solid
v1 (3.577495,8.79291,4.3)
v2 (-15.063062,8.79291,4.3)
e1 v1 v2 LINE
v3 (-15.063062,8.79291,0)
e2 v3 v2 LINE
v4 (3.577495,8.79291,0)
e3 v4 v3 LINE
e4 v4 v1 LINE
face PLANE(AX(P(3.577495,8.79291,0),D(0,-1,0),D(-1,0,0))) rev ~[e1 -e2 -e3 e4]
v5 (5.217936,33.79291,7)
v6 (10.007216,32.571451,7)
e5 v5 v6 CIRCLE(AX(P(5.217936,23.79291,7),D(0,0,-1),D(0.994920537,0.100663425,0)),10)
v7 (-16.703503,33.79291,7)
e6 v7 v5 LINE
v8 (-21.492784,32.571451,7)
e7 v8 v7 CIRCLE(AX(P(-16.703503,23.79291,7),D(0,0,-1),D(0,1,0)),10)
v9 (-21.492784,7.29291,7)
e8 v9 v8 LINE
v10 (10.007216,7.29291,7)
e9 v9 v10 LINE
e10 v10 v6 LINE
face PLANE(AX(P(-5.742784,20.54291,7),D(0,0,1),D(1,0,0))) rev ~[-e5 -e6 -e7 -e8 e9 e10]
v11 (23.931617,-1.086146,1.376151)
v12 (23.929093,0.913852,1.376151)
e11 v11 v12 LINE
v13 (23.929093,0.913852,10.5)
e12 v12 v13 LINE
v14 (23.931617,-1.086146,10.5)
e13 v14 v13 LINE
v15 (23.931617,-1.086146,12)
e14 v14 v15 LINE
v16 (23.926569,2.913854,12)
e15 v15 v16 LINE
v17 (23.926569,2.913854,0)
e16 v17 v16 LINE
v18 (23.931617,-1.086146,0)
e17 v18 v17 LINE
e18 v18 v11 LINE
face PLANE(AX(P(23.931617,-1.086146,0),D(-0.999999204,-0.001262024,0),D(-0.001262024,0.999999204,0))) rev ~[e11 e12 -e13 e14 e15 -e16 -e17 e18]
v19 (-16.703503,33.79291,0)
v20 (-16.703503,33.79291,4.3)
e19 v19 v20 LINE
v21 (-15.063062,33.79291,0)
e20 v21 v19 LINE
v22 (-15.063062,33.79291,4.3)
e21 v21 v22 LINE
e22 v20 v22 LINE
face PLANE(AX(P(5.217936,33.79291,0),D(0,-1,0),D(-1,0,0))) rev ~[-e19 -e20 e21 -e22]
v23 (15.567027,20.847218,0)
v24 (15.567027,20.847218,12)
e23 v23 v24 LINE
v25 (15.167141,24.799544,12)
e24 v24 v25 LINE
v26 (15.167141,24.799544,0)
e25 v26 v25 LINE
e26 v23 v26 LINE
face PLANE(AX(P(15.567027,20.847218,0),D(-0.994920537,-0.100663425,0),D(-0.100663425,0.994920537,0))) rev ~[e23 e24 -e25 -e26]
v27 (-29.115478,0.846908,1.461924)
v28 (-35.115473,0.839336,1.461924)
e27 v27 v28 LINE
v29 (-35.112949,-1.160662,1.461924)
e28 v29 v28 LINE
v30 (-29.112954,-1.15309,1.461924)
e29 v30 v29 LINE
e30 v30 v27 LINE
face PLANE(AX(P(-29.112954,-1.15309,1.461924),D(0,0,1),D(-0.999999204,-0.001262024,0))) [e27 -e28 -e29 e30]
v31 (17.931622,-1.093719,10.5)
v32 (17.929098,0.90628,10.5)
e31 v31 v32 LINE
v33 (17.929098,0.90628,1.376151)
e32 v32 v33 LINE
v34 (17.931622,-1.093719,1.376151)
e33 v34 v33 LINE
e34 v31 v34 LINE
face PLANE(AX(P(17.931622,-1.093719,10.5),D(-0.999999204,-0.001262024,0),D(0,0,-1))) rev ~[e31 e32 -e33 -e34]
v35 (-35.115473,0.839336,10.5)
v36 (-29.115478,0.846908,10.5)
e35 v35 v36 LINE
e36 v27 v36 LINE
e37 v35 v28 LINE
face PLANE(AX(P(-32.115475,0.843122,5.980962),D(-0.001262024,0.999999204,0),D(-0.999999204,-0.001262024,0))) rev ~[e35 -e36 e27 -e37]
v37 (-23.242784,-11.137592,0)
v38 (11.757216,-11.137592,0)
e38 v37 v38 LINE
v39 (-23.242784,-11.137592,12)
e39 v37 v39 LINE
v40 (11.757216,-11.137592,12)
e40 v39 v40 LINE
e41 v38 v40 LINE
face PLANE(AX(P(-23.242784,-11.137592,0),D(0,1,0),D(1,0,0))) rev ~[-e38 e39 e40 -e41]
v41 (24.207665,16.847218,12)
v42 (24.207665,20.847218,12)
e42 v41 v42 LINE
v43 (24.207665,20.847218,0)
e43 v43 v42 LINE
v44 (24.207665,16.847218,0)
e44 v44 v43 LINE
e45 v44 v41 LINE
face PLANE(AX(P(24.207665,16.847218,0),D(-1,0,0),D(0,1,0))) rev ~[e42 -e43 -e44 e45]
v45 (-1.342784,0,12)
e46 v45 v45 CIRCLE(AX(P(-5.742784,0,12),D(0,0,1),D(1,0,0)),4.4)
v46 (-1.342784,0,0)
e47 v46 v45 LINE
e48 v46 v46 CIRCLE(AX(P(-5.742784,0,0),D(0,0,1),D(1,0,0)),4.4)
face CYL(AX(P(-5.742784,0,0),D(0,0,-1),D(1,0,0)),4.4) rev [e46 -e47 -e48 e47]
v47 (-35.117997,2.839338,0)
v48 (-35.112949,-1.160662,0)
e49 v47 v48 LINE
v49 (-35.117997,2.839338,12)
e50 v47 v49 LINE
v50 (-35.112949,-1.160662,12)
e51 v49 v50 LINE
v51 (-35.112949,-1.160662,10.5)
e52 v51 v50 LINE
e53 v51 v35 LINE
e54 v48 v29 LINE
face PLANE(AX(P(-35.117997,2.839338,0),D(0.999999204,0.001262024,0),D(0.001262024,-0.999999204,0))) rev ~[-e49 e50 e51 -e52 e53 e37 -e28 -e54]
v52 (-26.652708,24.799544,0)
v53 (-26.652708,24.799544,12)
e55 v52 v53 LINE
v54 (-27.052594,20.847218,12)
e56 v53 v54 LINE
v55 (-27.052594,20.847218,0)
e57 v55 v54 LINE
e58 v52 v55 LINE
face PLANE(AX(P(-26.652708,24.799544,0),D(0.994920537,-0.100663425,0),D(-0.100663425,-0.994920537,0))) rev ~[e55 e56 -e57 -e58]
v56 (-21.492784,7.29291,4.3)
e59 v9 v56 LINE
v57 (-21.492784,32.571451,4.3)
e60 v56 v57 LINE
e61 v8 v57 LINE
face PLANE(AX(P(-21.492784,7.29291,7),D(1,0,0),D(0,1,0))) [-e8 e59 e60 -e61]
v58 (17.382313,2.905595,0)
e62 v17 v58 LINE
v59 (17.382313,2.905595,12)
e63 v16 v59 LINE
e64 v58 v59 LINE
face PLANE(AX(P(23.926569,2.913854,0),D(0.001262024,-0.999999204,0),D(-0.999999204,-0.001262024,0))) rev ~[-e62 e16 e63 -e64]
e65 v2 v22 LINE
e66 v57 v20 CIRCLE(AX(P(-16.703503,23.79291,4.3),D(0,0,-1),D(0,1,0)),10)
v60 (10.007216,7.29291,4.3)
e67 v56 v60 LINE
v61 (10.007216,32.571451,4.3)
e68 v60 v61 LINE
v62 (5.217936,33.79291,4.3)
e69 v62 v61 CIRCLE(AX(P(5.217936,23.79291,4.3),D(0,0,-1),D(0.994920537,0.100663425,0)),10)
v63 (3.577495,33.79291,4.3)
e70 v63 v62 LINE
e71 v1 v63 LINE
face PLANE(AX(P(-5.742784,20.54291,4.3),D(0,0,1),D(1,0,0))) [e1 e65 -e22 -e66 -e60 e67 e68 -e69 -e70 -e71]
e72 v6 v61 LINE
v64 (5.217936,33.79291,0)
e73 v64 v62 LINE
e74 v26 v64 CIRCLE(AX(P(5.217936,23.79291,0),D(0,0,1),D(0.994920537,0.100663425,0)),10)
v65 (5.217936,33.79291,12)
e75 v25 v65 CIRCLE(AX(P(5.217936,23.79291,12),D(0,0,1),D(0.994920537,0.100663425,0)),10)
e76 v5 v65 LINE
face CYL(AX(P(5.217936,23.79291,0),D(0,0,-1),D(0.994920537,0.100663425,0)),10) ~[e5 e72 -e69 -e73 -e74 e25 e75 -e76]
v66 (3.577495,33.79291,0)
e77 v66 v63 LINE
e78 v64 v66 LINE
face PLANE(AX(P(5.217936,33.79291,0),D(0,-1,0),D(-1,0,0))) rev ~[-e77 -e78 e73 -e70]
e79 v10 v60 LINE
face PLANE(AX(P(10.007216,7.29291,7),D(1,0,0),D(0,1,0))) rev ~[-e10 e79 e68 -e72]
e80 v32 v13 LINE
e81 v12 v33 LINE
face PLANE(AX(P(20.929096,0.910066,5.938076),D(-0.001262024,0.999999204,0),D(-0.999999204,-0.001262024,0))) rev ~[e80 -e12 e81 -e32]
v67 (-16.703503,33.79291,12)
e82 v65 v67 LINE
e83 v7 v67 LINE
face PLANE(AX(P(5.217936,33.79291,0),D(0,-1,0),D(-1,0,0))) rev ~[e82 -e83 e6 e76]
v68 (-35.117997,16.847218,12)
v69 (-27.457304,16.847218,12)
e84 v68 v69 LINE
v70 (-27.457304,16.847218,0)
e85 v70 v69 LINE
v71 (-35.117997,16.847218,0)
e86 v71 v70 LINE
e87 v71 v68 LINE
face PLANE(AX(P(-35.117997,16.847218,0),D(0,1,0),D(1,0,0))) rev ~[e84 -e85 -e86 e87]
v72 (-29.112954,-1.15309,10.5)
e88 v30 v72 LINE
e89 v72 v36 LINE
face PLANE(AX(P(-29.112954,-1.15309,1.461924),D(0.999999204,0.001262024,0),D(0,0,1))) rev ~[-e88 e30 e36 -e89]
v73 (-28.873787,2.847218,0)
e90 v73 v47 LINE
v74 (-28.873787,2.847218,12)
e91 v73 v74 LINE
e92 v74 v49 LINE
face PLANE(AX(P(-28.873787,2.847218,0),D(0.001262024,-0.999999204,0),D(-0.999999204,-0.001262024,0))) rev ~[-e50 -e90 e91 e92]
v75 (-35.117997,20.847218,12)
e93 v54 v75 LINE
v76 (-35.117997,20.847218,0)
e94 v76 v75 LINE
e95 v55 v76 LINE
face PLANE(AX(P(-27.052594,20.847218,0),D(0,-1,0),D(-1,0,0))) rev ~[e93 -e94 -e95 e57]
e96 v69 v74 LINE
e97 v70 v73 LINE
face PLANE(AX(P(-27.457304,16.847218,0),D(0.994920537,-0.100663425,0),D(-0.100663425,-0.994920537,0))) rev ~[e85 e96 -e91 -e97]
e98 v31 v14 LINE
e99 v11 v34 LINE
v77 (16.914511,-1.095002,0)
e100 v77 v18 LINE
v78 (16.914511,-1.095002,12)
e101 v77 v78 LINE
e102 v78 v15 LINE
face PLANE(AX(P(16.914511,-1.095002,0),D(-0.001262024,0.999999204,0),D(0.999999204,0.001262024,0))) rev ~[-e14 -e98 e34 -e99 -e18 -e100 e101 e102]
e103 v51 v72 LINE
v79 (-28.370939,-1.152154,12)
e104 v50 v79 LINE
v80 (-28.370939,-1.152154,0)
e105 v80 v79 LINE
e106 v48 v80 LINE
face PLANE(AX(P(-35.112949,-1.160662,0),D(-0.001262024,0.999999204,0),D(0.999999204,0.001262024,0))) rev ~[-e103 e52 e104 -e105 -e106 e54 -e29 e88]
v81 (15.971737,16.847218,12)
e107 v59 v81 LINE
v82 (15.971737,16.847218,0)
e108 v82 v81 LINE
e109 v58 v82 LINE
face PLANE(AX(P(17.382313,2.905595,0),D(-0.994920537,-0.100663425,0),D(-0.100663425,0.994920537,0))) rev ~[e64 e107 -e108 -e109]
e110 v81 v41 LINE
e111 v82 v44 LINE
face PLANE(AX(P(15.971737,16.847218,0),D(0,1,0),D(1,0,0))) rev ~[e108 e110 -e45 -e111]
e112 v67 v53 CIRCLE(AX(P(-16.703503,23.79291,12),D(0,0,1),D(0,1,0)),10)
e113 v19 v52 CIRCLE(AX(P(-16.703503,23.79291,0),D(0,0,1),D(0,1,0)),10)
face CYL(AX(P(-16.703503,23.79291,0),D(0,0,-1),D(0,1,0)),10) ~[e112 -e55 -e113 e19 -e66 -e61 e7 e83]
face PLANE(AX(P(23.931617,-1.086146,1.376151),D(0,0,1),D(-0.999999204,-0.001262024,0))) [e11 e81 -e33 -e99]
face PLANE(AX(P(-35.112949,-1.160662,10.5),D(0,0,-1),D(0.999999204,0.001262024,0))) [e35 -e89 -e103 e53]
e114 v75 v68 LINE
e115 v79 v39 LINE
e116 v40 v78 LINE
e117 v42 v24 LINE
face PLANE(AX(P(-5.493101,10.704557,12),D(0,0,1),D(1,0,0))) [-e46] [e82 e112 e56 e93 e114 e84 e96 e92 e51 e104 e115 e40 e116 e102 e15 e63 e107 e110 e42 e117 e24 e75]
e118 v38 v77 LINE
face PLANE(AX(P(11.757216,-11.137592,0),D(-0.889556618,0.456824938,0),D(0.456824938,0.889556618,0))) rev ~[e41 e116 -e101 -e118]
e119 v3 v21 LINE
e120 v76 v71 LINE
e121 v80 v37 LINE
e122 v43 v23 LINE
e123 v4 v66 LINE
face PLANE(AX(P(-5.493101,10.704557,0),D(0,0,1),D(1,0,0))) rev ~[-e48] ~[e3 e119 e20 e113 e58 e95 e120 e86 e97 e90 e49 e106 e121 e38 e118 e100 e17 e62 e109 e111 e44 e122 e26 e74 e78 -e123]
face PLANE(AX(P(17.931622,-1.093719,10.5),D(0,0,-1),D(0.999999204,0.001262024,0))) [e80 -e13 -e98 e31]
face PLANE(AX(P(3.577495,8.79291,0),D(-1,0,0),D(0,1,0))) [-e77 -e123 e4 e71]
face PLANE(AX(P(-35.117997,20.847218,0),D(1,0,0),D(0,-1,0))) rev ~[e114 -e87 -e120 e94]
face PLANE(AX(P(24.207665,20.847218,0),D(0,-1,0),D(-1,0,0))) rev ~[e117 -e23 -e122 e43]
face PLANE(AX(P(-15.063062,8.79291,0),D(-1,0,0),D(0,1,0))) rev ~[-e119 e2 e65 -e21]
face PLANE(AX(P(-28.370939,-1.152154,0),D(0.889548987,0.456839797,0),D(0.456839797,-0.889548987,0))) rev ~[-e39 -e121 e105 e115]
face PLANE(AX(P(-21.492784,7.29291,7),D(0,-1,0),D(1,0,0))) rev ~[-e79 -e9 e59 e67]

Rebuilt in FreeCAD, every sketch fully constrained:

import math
import FreeCAD as App
import Part
import Sketcher

V = App.Vector


def add_polygon(sketch, points):
    """Adds a closed chain of lines whose ends are joined by coincident constraints."""
    first, n = sketch.GeometryCount, len(points)
    for a, b in zip(points, points[1:] + points[:1]):
        sketch.addGeometry(Part.LineSegment(App.Vector(*a, 0), App.Vector(*b, 0)), False)
    for i in range(n):
        sketch.addConstraint(Sketcher.Constraint("Coincident", first + i, 2, first + (i + 1) % n, 1))

doc = App.newDocument("Part")
params = doc.addObject("Spreadsheet::Sheet", "Params")
for row, (alias, value) in enumerate([
    ("sketch1_radius", "10 mm"),
    ("sketch1_diameter", "8.8 mm"),
    ("sketch1_width", "35 mm"),
    ("sketch1_height", "4 mm"),
    ("pad1_length", "12 mm"),
    ("sketch2_width", "6 mm"),
    ("pocket1_length", "2 mm"),
    ("sketch3_width", "31.5 mm"),
    ("sketch3_height", "26.5 mm"),
    ("pocket2_length", "2.7 mm"),
    ("sketch4_height", "25 mm"),
], start=1):
    params.set(f"A{row}", alias)
    params.set(f"B{row}", "=" + value)
    params.setAlias(f"B{row}", alias)

body = doc.addObject("PartDesign::Body", "Body")

sketch1 = body.newObject("Sketcher::SketchObject", "Sketch")
sketch1.AttachmentSupport = (doc.getObject("XY_Plane"), [""])
sketch1.MapMode = "FlatFace"
sketch1.addGeometry([
    Part.LineSegment(V(-26.652708, 24.799544, 0), V(-27.052594, 20.847218, 0)),
    Part.LineSegment(V(-27.052594, 20.847218, 0), V(-35.117997, 20.847218, 0)),
    Part.LineSegment(V(-35.117997, 20.847218, 0), V(-35.117997, 16.847218, 0)),
    Part.LineSegment(V(-35.117997, 16.847218, 0), V(-27.457304, 16.847218, 0)),
    Part.LineSegment(V(-27.457304, 16.847218, 0), V(-28.873787, 2.847218, 0)),
    Part.LineSegment(V(-28.873787, 2.847218, 0), V(-35.117997, 2.839338, 0)),
    Part.LineSegment(V(-35.117997, 2.839338, 0), V(-35.112949, -1.160662, 0)),
    Part.LineSegment(V(-35.112949, -1.160662, 0), V(-28.370939, -1.152154, 0)),
    Part.LineSegment(V(-28.370939, -1.152154, 0), V(-23.242784, -11.137592, 0)),
    Part.LineSegment(V(-23.242784, -11.137592, 0), V(11.757216, -11.137592, 0)),
    Part.LineSegment(V(11.757216, -11.137592, 0), V(16.914511, -1.095002, 0)),
    Part.LineSegment(V(16.914511, -1.095002, 0), V(23.931617, -1.086146, 0)),
    Part.LineSegment(V(23.931617, -1.086146, 0), V(23.926569, 2.913854, 0)),
    Part.LineSegment(V(23.926569, 2.913854, 0), V(17.382313, 2.905595, 0)),
    Part.LineSegment(V(17.382313, 2.905595, 0), V(15.971737, 16.847218, 0)),
    Part.LineSegment(V(15.971737, 16.847218, 0), V(24.207665, 16.847218, 0)),
    Part.LineSegment(V(24.207665, 16.847218, 0), V(24.207665, 20.847218, 0)),
    Part.LineSegment(V(24.207665, 20.847218, 0), V(15.567027, 20.847218, 0)),
    Part.LineSegment(V(15.567027, 20.847218, 0), V(15.167141, 24.799544, 0)),
    Part.ArcOfCircle(Part.Circle(V(5.217936, 23.79291, 0), V(0, 0, 1), 10), math.radians(5.777375), math.radians(90)),
    Part.LineSegment(V(5.217936, 33.79291, 0), V(-16.703503, 33.79291, 0)),
    Part.ArcOfCircle(Part.Circle(V(-16.703503, 23.79291, 0), V(0, 0, 1), 10), math.radians(90), math.radians(174.222625)),
    Part.Circle(V(-5.742784, 0, 0), V(0, 0, 1), 4.4),
], False)
sketch1.addConstraint([
    Sketcher.Constraint("Coincident", 0, 2, 1, 1),
    Sketcher.Constraint("Coincident", 1, 2, 2, 1),
    Sketcher.Constraint("Coincident", 2, 2, 3, 1),
    Sketcher.Constraint("Coincident", 3, 2, 4, 1),
    Sketcher.Constraint("Coincident", 4, 2, 5, 1),
    Sketcher.Constraint("Coincident", 5, 2, 6, 1),
    Sketcher.Constraint("Coincident", 6, 2, 7, 1),
    Sketcher.Constraint("Coincident", 7, 2, 8, 1),
    Sketcher.Constraint("Coincident", 8, 2, 9, 1),
    Sketcher.Constraint("Coincident", 9, 2, 10, 1),
    Sketcher.Constraint("Coincident", 10, 2, 11, 1),
    Sketcher.Constraint("Coincident", 11, 2, 12, 1),
    Sketcher.Constraint("Coincident", 12, 2, 13, 1),
    Sketcher.Constraint("Coincident", 13, 2, 14, 1),
    Sketcher.Constraint("Coincident", 14, 2, 15, 1),
    Sketcher.Constraint("Coincident", 15, 2, 16, 1),
    Sketcher.Constraint("Coincident", 16, 2, 17, 1),
    Sketcher.Constraint("Coincident", 17, 2, 18, 1),
    Sketcher.Constraint("Tangent", 18, 2, 19, 1),
    Sketcher.Constraint("Tangent", 19, 2, 20, 1),
    Sketcher.Constraint("Tangent", 20, 2, 21, 1),
    Sketcher.Constraint("Tangent", 21, 2, 0, 1),
    Sketcher.Constraint("Horizontal", 1),
    Sketcher.Constraint("Vertical", 2),
    Sketcher.Constraint("Horizontal", 3),
    Sketcher.Constraint("Horizontal", 9),
    Sketcher.Constraint("Horizontal", 15),
    Sketcher.Constraint("Vertical", 16),
    Sketcher.Constraint("Horizontal", 17),
    Sketcher.Constraint("Horizontal", 20),
    Sketcher.Constraint("Equal", 19, 21),
    Sketcher.Constraint("PointOnObject", 22, 3, -1),
    Sketcher.Constraint("Parallel", 0, 4),
    Sketcher.Constraint("Perpendicular", 5, 6),
    Sketcher.Constraint("Perpendicular", 6, 7),
    Sketcher.Constraint("Parallel", 7, 11),
    Sketcher.Constraint("Perpendicular", 11, 12),
    Sketcher.Constraint("Perpendicular", 12, 13),
    Sketcher.Constraint("Parallel", 14, 18),
    Sketcher.Constraint("Horizontal", 3, 2, 14, 2),
    Sketcher.Constraint("Horizontal", 1, 2, 16, 2),
    Sketcher.Constraint("Horizontal", 18, 2, 21, 2),
    Sketcher.Constraint("Vertical", 2, 2, 5, 2),
    Sketcher.Constraint("Equal", 6, 12),
    Sketcher.Constraint("Radius", 19, 10.0),
    Sketcher.Constraint("Diameter", 22, 8.8),
    Sketcher.Constraint("DistanceX", 9, 1, 9, 2, 35.0),
    Sketcher.Constraint("DistanceY", 2, 2, 2, 1, 4.0),
    Sketcher.Constraint("DistanceY", 4, 2, 3, 2, 14.0),
    Sketcher.Constraint("DistanceY", 6, 2, 5, 2, 4.0),
    Sketcher.Constraint("DistanceX", 8, 2, 22, 3, 17.5),
    Sketcher.Constraint("Distance", 14, 14.012801),
    Sketcher.Constraint("DistanceX", 15, 1, 15, 2, 8.235929),
    Sketcher.Constraint("DistanceX", 17, 2, 17, 1, 8.640638),
    Sketcher.Constraint("DistanceX", 20, 2, 20, 1, 21.921439),
    Sketcher.Constraint("DistanceX", 3, 2, 21, 3, 10.753801),
    Sketcher.Constraint("DistanceY", 9, 2, 19, 3, 34.930502),
    Sketcher.Constraint("DistanceX", 9, 2, 11, 2, 12.174401),
    Sketcher.Constraint("DistanceX", 19, 3, 14, 2, 10.753801),
    Sketcher.Constraint("Distance", 11, 7.017112),
    Sketcher.Constraint("Distance", 13, 6.544261),
    Sketcher.Constraint("DistanceX", 1, 2, 1, 1, 8.065403),
    Sketcher.Constraint("DistanceY", -1, 1, 19, 3, 23.79291),
    Sketcher.Constraint("DistanceY", -1, 1, 0, 2, 20.847218),
    Sketcher.Constraint("DistanceX", 6, 2, -1, 1, 35.112949),
    Sketcher.Constraint("DistanceX", 7, 2, -1, 1, 28.370939),
    Sketcher.Constraint("DistanceX", -1, 1, 12, 2, 23.926569),
])
sketch1.setExpression("Constraints[44]", "Params.sketch1_radius")
sketch1.setExpression("Constraints[45]", "Params.sketch1_diameter")
sketch1.setExpression("Constraints[46]", "Params.sketch1_width")
sketch1.setExpression("Constraints[47]", "Params.sketch1_height")
pad1 = body.newObject("PartDesign::Pad", "Pad")
pad1.Profile = sketch1
pad1.setExpression("Length", "Params.pad1_length")

sketch2 = body.newObject("Sketcher::SketchObject", "Sketch001")
sketch2.Placement = App.Placement(V(0.001409, -1.116347, 0), App.Rotation(V(0.999999204, 0.001262024, 0), V(0, 0, 1.000000001), V(0.001262024, -0.999999204, 0), "ZXY"))
add_polygon(sketch2, [(-29.114386, 10.5), (-35.114386, 10.5), (-35.114386, 1.461924), (-29.114386, 1.461924)])
add_polygon(sketch2, [(23.930228, 10.5), (17.930228, 10.5), (17.930228, 1.376151), (23.930228, 1.376151)])
sketch2.addConstraint([
    Sketcher.Constraint("Horizontal", 0),
    Sketcher.Constraint("Vertical", 1),
    Sketcher.Constraint("Horizontal", 2),
    Sketcher.Constraint("Vertical", 3),
    Sketcher.Constraint("Horizontal", 4),
    Sketcher.Constraint("Vertical", 5),
    Sketcher.Constraint("Horizontal", 6),
    Sketcher.Constraint("Vertical", 7),
    Sketcher.Constraint("Horizontal", 3, 2, 4, 2),
    Sketcher.Constraint("Equal", 2, 4),
    Sketcher.Constraint("DistanceX", 0, 2, 0, 1, 6.0),
    Sketcher.Constraint("DistanceY", -1, 1, 0, 2, 10.5),
    Sketcher.Constraint("DistanceY", 5, 2, 5, 1, 9.123849),
    Sketcher.Constraint("DistanceY", 1, 2, 1, 1, 9.038076),
    Sketcher.Constraint("DistanceX", 0, 2, -1, 1, 35.114386),
    Sketcher.Constraint("DistanceX", -1, 1, 4, 2, 17.930228),
])
sketch2.setExpression("Constraints[18]", "Params.sketch2_width")
pocket1 = body.newObject("PartDesign::Pocket", "Pocket")
pocket1.Profile = sketch2
pocket1.setExpression("Length", "Params.pocket1_length")

sketch3 = body.newObject("Sketcher::SketchObject", "Sketch002")
sketch3.AttachmentSupport = (doc.getObject("XY_Plane"), [""])
sketch3.MapMode = "FlatFace"
sketch3.AttachmentOffset = App.Placement(V(0, 0, 7), App.Rotation())
add_polygon(sketch3, [(-21.492784, 33.79291), (-21.492784, 7.29291), (10.007216, 7.29291), (10.007216, 33.79291)])
sketch3.addConstraint([
    Sketcher.Constraint("Vertical", 0),
    Sketcher.Constraint("Horizontal", 1),
    Sketcher.Constraint("Vertical", 2),
    Sketcher.Constraint("Horizontal", 3),
    Sketcher.Constraint("DistanceX", 1, 1, 1, 2, 31.5),
    Sketcher.Constraint("DistanceY", 0, 2, 0, 1, 26.5),
    Sketcher.Constraint("DistanceY", -1, 1, 0, 2, 7.29291),
    Sketcher.Constraint("DistanceX", 0, 2, -1, 1, 21.492784),
])
sketch3.setExpression("Constraints[8]", "Params.sketch3_width")
sketch3.setExpression("Constraints[9]", "Params.sketch3_height")
pocket2 = body.newObject("PartDesign::Pocket", "Pocket001")
pocket2.Profile = sketch3
pocket2.setExpression("Length", "Params.pocket2_length")

sketch4 = body.newObject("Sketcher::SketchObject", "Sketch003")
sketch4.AttachmentSupport = (doc.getObject("XY_Plane"), [""])
sketch4.MapMode = "FlatFace"
add_polygon(sketch4, [(3.577495, 33.79291), (3.577495, 8.79291), (-15.063062, 8.79291), (-15.063062, 33.79291)])
sketch4.addConstraint([
    Sketcher.Constraint("Vertical", 0),
    Sketcher.Constraint("Horizontal", 1),
    Sketcher.Constraint("Vertical", 2),
    Sketcher.Constraint("Horizontal", 3),
    Sketcher.Constraint("DistanceY", 0, 2, 0, 1, 25.0),
    Sketcher.Constraint("DistanceX", 1, 2, 1, 1, 18.640557),
    Sketcher.Constraint("DistanceY", -1, 1, 0, 2, 8.79291),
    Sketcher.Constraint("DistanceX", -1, 1, 0, 2, 3.577495),
])
sketch4.setExpression("Constraints[8]", "Params.sketch4_height")
pocket3 = body.newObject("PartDesign::Pocket", "Pocket002")
pocket3.Profile = sketch4
pocket3.Type = "UpToFirst"
pocket3.Reversed = True

doc.recompute()
